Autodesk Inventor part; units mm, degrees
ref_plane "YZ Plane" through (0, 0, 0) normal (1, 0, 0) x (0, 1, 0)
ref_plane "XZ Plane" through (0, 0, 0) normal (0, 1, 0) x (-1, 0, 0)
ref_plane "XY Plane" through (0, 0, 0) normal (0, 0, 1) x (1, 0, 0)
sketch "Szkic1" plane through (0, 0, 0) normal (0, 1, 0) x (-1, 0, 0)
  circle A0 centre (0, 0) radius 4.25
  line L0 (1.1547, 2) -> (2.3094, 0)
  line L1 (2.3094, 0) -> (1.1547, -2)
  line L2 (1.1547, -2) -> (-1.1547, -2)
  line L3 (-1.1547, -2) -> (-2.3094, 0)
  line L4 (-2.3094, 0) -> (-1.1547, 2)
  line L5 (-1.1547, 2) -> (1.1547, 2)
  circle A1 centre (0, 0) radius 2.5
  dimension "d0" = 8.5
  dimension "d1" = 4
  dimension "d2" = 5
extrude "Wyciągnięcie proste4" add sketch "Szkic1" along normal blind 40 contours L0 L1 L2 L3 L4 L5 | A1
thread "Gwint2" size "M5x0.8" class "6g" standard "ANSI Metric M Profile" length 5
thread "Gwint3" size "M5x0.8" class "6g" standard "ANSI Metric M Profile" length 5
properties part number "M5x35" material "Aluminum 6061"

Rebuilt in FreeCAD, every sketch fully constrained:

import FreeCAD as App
import Part
import Sketcher
from FreeCAD import Vector
Q = App.Units.Quantity

doc = App.newDocument("Part")
body = doc.addObject("PartDesign::Body", "Body")

sketch1 = doc.addObject("Sketcher::SketchObject", "Sketch")
body.addObject(sketch1)
sketch1.AttachmentSupport = (doc.XZ_Plane, [""])
sketch1.MapMode = "FlatFace"
sketch1.addGeometry(Part.Circle(Vector(0, 0, 0), Vector(0, 0, 1), 2.5), False)
sketch1.addConstraint([
    Sketcher.Constraint("Coincident", 0, 3, -1, 1),
    Sketcher.Constraint("Diameter", 0, Q("5 mm")),
])
pad1 = doc.addObject("PartDesign::Pad", "Pad")
body.addObject(pad1)
pad1.Profile = sketch1
pad1.Length = 40
pad1.Reversed = True

doc.recompute()
